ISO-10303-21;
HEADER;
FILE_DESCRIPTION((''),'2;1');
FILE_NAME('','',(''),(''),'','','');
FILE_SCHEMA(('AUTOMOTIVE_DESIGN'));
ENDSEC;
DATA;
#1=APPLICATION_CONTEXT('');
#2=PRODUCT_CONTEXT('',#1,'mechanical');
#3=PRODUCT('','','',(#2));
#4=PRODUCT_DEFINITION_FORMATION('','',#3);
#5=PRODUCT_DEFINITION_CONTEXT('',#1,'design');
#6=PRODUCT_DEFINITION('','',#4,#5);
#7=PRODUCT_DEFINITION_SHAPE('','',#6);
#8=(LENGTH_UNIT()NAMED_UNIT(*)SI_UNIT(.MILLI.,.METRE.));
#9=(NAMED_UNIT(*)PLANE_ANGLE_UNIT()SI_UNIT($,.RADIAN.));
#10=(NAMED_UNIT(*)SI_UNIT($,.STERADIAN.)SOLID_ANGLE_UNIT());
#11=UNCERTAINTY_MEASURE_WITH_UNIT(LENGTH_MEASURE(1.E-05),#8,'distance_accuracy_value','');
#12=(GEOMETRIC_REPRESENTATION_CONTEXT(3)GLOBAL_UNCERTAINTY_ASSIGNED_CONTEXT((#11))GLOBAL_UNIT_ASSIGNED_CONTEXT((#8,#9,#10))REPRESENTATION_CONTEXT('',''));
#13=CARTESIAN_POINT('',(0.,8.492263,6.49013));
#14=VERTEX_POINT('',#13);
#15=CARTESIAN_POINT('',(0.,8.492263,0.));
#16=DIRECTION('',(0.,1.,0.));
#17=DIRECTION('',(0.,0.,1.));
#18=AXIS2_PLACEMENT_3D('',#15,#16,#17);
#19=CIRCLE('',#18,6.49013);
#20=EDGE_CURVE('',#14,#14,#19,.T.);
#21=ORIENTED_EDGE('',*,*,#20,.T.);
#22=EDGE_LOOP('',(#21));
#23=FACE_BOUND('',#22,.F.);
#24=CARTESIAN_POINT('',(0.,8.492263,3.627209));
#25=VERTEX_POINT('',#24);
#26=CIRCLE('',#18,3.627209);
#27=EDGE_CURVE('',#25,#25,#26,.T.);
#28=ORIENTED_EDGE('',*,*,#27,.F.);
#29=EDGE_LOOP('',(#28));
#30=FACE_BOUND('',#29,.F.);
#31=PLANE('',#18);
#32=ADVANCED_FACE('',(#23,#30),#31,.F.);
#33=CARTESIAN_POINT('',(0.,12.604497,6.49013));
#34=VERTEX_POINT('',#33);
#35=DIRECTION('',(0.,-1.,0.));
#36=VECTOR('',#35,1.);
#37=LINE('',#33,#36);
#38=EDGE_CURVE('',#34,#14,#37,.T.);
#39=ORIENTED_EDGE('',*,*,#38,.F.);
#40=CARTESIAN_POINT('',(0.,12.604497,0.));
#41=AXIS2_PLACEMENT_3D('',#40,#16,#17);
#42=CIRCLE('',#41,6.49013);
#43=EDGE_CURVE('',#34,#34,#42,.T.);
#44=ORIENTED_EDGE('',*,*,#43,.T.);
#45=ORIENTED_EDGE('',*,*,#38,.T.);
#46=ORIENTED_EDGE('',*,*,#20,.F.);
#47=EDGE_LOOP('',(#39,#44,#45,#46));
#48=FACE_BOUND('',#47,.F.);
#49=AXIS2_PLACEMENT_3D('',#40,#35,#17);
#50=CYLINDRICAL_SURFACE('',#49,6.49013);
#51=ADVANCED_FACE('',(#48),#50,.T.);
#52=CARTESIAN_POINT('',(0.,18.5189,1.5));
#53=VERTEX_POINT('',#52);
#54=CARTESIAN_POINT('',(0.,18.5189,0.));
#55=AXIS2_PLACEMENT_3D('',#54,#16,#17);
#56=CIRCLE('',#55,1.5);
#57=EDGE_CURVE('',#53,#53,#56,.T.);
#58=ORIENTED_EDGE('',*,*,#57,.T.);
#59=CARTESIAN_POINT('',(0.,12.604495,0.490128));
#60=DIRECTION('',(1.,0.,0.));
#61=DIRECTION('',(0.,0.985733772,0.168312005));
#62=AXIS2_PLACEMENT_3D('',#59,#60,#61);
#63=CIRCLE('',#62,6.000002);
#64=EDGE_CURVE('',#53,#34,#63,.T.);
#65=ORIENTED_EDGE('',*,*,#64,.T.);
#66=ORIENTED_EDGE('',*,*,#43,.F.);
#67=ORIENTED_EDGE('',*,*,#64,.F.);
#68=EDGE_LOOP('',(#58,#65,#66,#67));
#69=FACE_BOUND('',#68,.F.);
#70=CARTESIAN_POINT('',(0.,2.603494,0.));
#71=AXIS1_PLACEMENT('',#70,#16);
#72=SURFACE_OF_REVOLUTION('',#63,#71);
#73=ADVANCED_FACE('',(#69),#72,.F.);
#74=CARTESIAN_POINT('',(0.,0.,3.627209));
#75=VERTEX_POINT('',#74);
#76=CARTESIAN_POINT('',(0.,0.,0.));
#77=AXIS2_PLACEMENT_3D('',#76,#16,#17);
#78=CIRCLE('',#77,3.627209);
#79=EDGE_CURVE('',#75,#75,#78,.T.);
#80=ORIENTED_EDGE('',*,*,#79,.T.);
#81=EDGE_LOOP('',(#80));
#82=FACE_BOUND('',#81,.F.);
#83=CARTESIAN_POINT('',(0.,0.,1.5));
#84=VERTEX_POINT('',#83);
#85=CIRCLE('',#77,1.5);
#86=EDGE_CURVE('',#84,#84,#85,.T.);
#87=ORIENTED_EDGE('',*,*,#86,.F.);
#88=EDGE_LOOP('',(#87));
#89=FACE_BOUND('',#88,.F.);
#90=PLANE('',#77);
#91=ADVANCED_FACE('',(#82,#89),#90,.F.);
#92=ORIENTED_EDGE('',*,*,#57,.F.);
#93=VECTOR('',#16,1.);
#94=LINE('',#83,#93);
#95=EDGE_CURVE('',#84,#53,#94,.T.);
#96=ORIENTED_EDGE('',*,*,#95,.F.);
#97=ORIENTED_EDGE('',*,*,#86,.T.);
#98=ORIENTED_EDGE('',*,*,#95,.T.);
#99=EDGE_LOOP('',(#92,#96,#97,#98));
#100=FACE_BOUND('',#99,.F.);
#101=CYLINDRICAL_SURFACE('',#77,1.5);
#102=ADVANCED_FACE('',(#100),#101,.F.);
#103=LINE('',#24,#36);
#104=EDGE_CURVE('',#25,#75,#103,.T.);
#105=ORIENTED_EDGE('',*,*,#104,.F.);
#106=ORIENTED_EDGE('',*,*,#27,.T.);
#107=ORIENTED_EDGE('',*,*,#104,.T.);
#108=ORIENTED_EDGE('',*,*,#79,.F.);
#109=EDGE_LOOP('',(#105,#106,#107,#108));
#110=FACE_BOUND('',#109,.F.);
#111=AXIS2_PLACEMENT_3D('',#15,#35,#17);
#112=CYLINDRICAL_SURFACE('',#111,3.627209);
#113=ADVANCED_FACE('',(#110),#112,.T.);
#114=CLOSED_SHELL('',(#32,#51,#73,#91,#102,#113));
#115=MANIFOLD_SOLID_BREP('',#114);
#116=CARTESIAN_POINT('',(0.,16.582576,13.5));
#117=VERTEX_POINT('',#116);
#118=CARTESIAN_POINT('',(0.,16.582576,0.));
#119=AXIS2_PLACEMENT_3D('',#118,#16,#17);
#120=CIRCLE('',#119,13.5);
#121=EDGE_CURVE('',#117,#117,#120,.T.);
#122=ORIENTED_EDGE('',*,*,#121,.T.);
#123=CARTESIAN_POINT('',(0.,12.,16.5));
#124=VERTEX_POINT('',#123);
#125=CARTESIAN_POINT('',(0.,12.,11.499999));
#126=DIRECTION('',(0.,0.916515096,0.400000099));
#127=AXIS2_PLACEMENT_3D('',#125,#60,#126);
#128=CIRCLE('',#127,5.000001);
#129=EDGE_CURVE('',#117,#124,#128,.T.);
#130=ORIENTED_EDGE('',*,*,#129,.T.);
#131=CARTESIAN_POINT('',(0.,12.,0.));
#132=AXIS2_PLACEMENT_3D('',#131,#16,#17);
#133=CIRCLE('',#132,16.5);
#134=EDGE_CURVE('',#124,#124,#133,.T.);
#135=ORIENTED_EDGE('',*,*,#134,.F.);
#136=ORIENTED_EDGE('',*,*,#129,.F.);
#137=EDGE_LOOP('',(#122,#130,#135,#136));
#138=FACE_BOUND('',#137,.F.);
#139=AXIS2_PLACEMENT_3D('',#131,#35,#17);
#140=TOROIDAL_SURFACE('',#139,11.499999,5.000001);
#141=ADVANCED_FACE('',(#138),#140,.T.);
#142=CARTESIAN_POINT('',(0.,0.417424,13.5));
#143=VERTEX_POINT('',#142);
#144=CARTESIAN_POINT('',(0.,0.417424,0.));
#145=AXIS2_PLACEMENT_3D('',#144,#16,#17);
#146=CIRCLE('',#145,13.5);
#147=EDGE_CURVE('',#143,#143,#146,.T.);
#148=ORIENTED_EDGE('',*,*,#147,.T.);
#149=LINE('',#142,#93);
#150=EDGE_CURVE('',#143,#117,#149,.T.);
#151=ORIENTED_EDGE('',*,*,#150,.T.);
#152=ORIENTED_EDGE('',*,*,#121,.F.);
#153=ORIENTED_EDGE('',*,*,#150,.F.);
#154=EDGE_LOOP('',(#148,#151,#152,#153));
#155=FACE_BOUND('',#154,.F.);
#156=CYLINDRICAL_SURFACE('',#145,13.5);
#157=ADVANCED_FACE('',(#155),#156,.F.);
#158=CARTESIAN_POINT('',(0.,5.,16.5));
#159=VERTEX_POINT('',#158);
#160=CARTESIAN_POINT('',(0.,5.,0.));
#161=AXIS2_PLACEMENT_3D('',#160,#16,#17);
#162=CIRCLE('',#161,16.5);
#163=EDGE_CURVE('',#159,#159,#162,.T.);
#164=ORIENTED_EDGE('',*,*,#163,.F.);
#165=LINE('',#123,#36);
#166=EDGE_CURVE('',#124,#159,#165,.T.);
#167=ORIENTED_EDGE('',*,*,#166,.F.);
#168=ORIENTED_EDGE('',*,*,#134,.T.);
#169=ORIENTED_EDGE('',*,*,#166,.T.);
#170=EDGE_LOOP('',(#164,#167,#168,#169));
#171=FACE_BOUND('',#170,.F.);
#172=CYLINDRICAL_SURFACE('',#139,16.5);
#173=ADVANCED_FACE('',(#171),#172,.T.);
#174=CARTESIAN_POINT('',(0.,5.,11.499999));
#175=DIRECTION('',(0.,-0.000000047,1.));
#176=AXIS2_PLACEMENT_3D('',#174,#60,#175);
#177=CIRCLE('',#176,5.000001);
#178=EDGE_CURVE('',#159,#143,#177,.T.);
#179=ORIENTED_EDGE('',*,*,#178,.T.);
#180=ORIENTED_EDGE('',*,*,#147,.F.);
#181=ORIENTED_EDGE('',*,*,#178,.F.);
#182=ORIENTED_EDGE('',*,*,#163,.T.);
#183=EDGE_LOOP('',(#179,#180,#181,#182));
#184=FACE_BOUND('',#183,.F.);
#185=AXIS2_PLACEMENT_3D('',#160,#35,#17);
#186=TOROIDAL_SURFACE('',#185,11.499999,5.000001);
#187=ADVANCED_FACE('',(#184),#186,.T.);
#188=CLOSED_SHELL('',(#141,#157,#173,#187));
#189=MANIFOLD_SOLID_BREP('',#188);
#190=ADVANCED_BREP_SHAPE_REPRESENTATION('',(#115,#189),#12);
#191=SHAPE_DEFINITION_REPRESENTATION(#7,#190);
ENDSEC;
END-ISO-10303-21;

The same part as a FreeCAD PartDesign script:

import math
import FreeCAD as App
import Part
import Sketcher

doc = App.newDocument("Part")
params = doc.addObject("Spreadsheet::Sheet", "Params")
for row, (alias, value) in enumerate([
    ("sketch1_radius", "5.000001 mm"),
    ("sketch1_width", "7 mm"),
    ("sketch1_height", "2.000001 mm"),
    ("revolution_angle", "360 deg"),
], start=1):
    params.set(f"A{row}", alias)
    params.set(f"B{row}", "=" + value)
    params.setAlias(f"B{row}", alias)

body = doc.addObject("PartDesign::Body", "Body")
body.AllowCompound = True

# Sketch on YZ plane
sketch1 = body.newObject("Sketcher::SketchObject", "Sketch")
sketch1.AttachmentSupport = (doc.getObject("YZ_Plane"), [""])
sketch1.MapMode = "FlatFace"
sketch1.addGeometry(Part.LineSegment(App.Vector(12, 16.5, 0), App.Vector(5, 16.5, 0)), False)
sketch1.addGeometry(Part.ArcOfCircle(Part.Circle(App.Vector(5, 11.5, 0), App.Vector(0, 0, 1), 5), math.radians(90), math.radians(156)), False)
sketch1.addGeometry(Part.LineSegment(App.Vector(0.4, 13.5, 0), App.Vector(16.6, 13.5, 0)), False)
sketch1.addGeometry(Part.ArcOfCircle(Part.Circle(App.Vector(12, 11.5, 0), App.Vector(0, 0, 1), 5), math.radians(24), math.radians(90)), False)
sketch1.addGeometry(Part.LineSegment(App.Vector(8.5, 3.6, 0), App.Vector(0, 3.6, 0)), False)
sketch1.addGeometry(Part.LineSegment(App.Vector(0, 3.6, 0), App.Vector(0, 1.5, 0)), False)
sketch1.addGeometry(Part.LineSegment(App.Vector(0, 1.5, 0), App.Vector(18.5, 1.5, 0)), False)
sketch1.addGeometry(Part.ArcOfCircle(Part.Circle(App.Vector(12.6, 0.5, 0), App.Vector(0, 0, 1), 6), math.radians(10), math.radians(90)), False)
sketch1.addGeometry(Part.LineSegment(App.Vector(12.6, 6.5, 0), App.Vector(8.5, 6.5, 0)), False)
sketch1.addGeometry(Part.LineSegment(App.Vector(8.5, 6.5, 0), App.Vector(8.5, 3.6, 0)), False)
sketch1.addConstraint(Sketcher.Constraint("Tangent", 0, 2, 1, 1))
sketch1.addConstraint(Sketcher.Constraint("Coincident", 1, 2, 2, 1))
sketch1.addConstraint(Sketcher.Constraint("Coincident", 2, 2, 3, 1))
sketch1.addConstraint(Sketcher.Constraint("Tangent", 3, 2, 0, 1))
sketch1.addConstraint(Sketcher.Constraint("Coincident", 4, 2, 5, 1))
sketch1.addConstraint(Sketcher.Constraint("Coincident", 5, 2, 6, 1))
sketch1.addConstraint(Sketcher.Constraint("Coincident", 6, 2, 7, 1))
sketch1.addConstraint(Sketcher.Constraint("Tangent", 7, 2, 8, 1))
sketch1.addConstraint(Sketcher.Constraint("Coincident", 8, 2, 9, 1))
sketch1.addConstraint(Sketcher.Constraint("Coincident", 9, 2, 4, 1))
sketch1.addConstraint(Sketcher.Constraint("Horizontal", 0))
sketch1.addConstraint(Sketcher.Constraint("Horizontal", 2))
sketch1.addConstraint(Sketcher.Constraint("Horizontal", 4))
sketch1.addConstraint(Sketcher.Constraint("Vertical", 5))
sketch1.addConstraint(Sketcher.Constraint("Horizontal", 6))
sketch1.addConstraint(Sketcher.Constraint("Horizontal", 8))
sketch1.addConstraint(Sketcher.Constraint("Vertical", 9))
sketch1.addConstraint(Sketcher.Constraint("Equal", 1, 3))
sketch1.addConstraint(Sketcher.Constraint("PointOnObject", 4, 2, -2))
sketch1.addConstraint(Sketcher.Constraint("Radius", 1, 5.000001))
sketch1.addConstraint(Sketcher.Constraint("DistanceX", 0, 2, 0, 1, 7.0))
sketch1.addConstraint(Sketcher.Constraint("DistanceX", -1, 1, 1, 3, 5.0))
sketch1.addConstraint(Sketcher.Constraint("DistanceY", 1, 3, 1, 2, 2.000001))
sketch1.addConstraint(Sketcher.Constraint("DistanceY", 5, 2, 1, 3, 9.999999))
sketch1.addConstraint(Sketcher.Constraint("DistanceY", -1, 1, 1, 3, 11.499999))
sketch1.addConstraint(Sketcher.Constraint("DistanceX", 6, 1, 6, 2, 18.5189))
sketch1.addConstraint(Sketcher.Constraint("Radius", 7, 6.000002))
sketch1.addConstraint(Sketcher.Constraint("DistanceY", 5, 2, 5, 1, 2.127209))
sketch1.addConstraint(Sketcher.Constraint("DistanceY", 9, 2, 9, 1, 2.862921))
sketch1.addConstraint(Sketcher.Constraint("DistanceX", 4, 2, 4, 1, 8.492263))
sketch1.setExpression("Constraints[19]", "Params.sketch1_radius")
sketch1.setExpression("Constraints[20]", "Params.sketch1_width")
sketch1.setExpression("Constraints[22]", "Params.sketch1_height")
revolution = body.newObject("PartDesign::Revolution", "Revolution")
revolution.Profile = sketch1
revolution.ReferenceAxis = (sketch1, ["H_Axis"])
revolution.setExpression("Angle", "Params.revolution_angle")

doc.recompute()
